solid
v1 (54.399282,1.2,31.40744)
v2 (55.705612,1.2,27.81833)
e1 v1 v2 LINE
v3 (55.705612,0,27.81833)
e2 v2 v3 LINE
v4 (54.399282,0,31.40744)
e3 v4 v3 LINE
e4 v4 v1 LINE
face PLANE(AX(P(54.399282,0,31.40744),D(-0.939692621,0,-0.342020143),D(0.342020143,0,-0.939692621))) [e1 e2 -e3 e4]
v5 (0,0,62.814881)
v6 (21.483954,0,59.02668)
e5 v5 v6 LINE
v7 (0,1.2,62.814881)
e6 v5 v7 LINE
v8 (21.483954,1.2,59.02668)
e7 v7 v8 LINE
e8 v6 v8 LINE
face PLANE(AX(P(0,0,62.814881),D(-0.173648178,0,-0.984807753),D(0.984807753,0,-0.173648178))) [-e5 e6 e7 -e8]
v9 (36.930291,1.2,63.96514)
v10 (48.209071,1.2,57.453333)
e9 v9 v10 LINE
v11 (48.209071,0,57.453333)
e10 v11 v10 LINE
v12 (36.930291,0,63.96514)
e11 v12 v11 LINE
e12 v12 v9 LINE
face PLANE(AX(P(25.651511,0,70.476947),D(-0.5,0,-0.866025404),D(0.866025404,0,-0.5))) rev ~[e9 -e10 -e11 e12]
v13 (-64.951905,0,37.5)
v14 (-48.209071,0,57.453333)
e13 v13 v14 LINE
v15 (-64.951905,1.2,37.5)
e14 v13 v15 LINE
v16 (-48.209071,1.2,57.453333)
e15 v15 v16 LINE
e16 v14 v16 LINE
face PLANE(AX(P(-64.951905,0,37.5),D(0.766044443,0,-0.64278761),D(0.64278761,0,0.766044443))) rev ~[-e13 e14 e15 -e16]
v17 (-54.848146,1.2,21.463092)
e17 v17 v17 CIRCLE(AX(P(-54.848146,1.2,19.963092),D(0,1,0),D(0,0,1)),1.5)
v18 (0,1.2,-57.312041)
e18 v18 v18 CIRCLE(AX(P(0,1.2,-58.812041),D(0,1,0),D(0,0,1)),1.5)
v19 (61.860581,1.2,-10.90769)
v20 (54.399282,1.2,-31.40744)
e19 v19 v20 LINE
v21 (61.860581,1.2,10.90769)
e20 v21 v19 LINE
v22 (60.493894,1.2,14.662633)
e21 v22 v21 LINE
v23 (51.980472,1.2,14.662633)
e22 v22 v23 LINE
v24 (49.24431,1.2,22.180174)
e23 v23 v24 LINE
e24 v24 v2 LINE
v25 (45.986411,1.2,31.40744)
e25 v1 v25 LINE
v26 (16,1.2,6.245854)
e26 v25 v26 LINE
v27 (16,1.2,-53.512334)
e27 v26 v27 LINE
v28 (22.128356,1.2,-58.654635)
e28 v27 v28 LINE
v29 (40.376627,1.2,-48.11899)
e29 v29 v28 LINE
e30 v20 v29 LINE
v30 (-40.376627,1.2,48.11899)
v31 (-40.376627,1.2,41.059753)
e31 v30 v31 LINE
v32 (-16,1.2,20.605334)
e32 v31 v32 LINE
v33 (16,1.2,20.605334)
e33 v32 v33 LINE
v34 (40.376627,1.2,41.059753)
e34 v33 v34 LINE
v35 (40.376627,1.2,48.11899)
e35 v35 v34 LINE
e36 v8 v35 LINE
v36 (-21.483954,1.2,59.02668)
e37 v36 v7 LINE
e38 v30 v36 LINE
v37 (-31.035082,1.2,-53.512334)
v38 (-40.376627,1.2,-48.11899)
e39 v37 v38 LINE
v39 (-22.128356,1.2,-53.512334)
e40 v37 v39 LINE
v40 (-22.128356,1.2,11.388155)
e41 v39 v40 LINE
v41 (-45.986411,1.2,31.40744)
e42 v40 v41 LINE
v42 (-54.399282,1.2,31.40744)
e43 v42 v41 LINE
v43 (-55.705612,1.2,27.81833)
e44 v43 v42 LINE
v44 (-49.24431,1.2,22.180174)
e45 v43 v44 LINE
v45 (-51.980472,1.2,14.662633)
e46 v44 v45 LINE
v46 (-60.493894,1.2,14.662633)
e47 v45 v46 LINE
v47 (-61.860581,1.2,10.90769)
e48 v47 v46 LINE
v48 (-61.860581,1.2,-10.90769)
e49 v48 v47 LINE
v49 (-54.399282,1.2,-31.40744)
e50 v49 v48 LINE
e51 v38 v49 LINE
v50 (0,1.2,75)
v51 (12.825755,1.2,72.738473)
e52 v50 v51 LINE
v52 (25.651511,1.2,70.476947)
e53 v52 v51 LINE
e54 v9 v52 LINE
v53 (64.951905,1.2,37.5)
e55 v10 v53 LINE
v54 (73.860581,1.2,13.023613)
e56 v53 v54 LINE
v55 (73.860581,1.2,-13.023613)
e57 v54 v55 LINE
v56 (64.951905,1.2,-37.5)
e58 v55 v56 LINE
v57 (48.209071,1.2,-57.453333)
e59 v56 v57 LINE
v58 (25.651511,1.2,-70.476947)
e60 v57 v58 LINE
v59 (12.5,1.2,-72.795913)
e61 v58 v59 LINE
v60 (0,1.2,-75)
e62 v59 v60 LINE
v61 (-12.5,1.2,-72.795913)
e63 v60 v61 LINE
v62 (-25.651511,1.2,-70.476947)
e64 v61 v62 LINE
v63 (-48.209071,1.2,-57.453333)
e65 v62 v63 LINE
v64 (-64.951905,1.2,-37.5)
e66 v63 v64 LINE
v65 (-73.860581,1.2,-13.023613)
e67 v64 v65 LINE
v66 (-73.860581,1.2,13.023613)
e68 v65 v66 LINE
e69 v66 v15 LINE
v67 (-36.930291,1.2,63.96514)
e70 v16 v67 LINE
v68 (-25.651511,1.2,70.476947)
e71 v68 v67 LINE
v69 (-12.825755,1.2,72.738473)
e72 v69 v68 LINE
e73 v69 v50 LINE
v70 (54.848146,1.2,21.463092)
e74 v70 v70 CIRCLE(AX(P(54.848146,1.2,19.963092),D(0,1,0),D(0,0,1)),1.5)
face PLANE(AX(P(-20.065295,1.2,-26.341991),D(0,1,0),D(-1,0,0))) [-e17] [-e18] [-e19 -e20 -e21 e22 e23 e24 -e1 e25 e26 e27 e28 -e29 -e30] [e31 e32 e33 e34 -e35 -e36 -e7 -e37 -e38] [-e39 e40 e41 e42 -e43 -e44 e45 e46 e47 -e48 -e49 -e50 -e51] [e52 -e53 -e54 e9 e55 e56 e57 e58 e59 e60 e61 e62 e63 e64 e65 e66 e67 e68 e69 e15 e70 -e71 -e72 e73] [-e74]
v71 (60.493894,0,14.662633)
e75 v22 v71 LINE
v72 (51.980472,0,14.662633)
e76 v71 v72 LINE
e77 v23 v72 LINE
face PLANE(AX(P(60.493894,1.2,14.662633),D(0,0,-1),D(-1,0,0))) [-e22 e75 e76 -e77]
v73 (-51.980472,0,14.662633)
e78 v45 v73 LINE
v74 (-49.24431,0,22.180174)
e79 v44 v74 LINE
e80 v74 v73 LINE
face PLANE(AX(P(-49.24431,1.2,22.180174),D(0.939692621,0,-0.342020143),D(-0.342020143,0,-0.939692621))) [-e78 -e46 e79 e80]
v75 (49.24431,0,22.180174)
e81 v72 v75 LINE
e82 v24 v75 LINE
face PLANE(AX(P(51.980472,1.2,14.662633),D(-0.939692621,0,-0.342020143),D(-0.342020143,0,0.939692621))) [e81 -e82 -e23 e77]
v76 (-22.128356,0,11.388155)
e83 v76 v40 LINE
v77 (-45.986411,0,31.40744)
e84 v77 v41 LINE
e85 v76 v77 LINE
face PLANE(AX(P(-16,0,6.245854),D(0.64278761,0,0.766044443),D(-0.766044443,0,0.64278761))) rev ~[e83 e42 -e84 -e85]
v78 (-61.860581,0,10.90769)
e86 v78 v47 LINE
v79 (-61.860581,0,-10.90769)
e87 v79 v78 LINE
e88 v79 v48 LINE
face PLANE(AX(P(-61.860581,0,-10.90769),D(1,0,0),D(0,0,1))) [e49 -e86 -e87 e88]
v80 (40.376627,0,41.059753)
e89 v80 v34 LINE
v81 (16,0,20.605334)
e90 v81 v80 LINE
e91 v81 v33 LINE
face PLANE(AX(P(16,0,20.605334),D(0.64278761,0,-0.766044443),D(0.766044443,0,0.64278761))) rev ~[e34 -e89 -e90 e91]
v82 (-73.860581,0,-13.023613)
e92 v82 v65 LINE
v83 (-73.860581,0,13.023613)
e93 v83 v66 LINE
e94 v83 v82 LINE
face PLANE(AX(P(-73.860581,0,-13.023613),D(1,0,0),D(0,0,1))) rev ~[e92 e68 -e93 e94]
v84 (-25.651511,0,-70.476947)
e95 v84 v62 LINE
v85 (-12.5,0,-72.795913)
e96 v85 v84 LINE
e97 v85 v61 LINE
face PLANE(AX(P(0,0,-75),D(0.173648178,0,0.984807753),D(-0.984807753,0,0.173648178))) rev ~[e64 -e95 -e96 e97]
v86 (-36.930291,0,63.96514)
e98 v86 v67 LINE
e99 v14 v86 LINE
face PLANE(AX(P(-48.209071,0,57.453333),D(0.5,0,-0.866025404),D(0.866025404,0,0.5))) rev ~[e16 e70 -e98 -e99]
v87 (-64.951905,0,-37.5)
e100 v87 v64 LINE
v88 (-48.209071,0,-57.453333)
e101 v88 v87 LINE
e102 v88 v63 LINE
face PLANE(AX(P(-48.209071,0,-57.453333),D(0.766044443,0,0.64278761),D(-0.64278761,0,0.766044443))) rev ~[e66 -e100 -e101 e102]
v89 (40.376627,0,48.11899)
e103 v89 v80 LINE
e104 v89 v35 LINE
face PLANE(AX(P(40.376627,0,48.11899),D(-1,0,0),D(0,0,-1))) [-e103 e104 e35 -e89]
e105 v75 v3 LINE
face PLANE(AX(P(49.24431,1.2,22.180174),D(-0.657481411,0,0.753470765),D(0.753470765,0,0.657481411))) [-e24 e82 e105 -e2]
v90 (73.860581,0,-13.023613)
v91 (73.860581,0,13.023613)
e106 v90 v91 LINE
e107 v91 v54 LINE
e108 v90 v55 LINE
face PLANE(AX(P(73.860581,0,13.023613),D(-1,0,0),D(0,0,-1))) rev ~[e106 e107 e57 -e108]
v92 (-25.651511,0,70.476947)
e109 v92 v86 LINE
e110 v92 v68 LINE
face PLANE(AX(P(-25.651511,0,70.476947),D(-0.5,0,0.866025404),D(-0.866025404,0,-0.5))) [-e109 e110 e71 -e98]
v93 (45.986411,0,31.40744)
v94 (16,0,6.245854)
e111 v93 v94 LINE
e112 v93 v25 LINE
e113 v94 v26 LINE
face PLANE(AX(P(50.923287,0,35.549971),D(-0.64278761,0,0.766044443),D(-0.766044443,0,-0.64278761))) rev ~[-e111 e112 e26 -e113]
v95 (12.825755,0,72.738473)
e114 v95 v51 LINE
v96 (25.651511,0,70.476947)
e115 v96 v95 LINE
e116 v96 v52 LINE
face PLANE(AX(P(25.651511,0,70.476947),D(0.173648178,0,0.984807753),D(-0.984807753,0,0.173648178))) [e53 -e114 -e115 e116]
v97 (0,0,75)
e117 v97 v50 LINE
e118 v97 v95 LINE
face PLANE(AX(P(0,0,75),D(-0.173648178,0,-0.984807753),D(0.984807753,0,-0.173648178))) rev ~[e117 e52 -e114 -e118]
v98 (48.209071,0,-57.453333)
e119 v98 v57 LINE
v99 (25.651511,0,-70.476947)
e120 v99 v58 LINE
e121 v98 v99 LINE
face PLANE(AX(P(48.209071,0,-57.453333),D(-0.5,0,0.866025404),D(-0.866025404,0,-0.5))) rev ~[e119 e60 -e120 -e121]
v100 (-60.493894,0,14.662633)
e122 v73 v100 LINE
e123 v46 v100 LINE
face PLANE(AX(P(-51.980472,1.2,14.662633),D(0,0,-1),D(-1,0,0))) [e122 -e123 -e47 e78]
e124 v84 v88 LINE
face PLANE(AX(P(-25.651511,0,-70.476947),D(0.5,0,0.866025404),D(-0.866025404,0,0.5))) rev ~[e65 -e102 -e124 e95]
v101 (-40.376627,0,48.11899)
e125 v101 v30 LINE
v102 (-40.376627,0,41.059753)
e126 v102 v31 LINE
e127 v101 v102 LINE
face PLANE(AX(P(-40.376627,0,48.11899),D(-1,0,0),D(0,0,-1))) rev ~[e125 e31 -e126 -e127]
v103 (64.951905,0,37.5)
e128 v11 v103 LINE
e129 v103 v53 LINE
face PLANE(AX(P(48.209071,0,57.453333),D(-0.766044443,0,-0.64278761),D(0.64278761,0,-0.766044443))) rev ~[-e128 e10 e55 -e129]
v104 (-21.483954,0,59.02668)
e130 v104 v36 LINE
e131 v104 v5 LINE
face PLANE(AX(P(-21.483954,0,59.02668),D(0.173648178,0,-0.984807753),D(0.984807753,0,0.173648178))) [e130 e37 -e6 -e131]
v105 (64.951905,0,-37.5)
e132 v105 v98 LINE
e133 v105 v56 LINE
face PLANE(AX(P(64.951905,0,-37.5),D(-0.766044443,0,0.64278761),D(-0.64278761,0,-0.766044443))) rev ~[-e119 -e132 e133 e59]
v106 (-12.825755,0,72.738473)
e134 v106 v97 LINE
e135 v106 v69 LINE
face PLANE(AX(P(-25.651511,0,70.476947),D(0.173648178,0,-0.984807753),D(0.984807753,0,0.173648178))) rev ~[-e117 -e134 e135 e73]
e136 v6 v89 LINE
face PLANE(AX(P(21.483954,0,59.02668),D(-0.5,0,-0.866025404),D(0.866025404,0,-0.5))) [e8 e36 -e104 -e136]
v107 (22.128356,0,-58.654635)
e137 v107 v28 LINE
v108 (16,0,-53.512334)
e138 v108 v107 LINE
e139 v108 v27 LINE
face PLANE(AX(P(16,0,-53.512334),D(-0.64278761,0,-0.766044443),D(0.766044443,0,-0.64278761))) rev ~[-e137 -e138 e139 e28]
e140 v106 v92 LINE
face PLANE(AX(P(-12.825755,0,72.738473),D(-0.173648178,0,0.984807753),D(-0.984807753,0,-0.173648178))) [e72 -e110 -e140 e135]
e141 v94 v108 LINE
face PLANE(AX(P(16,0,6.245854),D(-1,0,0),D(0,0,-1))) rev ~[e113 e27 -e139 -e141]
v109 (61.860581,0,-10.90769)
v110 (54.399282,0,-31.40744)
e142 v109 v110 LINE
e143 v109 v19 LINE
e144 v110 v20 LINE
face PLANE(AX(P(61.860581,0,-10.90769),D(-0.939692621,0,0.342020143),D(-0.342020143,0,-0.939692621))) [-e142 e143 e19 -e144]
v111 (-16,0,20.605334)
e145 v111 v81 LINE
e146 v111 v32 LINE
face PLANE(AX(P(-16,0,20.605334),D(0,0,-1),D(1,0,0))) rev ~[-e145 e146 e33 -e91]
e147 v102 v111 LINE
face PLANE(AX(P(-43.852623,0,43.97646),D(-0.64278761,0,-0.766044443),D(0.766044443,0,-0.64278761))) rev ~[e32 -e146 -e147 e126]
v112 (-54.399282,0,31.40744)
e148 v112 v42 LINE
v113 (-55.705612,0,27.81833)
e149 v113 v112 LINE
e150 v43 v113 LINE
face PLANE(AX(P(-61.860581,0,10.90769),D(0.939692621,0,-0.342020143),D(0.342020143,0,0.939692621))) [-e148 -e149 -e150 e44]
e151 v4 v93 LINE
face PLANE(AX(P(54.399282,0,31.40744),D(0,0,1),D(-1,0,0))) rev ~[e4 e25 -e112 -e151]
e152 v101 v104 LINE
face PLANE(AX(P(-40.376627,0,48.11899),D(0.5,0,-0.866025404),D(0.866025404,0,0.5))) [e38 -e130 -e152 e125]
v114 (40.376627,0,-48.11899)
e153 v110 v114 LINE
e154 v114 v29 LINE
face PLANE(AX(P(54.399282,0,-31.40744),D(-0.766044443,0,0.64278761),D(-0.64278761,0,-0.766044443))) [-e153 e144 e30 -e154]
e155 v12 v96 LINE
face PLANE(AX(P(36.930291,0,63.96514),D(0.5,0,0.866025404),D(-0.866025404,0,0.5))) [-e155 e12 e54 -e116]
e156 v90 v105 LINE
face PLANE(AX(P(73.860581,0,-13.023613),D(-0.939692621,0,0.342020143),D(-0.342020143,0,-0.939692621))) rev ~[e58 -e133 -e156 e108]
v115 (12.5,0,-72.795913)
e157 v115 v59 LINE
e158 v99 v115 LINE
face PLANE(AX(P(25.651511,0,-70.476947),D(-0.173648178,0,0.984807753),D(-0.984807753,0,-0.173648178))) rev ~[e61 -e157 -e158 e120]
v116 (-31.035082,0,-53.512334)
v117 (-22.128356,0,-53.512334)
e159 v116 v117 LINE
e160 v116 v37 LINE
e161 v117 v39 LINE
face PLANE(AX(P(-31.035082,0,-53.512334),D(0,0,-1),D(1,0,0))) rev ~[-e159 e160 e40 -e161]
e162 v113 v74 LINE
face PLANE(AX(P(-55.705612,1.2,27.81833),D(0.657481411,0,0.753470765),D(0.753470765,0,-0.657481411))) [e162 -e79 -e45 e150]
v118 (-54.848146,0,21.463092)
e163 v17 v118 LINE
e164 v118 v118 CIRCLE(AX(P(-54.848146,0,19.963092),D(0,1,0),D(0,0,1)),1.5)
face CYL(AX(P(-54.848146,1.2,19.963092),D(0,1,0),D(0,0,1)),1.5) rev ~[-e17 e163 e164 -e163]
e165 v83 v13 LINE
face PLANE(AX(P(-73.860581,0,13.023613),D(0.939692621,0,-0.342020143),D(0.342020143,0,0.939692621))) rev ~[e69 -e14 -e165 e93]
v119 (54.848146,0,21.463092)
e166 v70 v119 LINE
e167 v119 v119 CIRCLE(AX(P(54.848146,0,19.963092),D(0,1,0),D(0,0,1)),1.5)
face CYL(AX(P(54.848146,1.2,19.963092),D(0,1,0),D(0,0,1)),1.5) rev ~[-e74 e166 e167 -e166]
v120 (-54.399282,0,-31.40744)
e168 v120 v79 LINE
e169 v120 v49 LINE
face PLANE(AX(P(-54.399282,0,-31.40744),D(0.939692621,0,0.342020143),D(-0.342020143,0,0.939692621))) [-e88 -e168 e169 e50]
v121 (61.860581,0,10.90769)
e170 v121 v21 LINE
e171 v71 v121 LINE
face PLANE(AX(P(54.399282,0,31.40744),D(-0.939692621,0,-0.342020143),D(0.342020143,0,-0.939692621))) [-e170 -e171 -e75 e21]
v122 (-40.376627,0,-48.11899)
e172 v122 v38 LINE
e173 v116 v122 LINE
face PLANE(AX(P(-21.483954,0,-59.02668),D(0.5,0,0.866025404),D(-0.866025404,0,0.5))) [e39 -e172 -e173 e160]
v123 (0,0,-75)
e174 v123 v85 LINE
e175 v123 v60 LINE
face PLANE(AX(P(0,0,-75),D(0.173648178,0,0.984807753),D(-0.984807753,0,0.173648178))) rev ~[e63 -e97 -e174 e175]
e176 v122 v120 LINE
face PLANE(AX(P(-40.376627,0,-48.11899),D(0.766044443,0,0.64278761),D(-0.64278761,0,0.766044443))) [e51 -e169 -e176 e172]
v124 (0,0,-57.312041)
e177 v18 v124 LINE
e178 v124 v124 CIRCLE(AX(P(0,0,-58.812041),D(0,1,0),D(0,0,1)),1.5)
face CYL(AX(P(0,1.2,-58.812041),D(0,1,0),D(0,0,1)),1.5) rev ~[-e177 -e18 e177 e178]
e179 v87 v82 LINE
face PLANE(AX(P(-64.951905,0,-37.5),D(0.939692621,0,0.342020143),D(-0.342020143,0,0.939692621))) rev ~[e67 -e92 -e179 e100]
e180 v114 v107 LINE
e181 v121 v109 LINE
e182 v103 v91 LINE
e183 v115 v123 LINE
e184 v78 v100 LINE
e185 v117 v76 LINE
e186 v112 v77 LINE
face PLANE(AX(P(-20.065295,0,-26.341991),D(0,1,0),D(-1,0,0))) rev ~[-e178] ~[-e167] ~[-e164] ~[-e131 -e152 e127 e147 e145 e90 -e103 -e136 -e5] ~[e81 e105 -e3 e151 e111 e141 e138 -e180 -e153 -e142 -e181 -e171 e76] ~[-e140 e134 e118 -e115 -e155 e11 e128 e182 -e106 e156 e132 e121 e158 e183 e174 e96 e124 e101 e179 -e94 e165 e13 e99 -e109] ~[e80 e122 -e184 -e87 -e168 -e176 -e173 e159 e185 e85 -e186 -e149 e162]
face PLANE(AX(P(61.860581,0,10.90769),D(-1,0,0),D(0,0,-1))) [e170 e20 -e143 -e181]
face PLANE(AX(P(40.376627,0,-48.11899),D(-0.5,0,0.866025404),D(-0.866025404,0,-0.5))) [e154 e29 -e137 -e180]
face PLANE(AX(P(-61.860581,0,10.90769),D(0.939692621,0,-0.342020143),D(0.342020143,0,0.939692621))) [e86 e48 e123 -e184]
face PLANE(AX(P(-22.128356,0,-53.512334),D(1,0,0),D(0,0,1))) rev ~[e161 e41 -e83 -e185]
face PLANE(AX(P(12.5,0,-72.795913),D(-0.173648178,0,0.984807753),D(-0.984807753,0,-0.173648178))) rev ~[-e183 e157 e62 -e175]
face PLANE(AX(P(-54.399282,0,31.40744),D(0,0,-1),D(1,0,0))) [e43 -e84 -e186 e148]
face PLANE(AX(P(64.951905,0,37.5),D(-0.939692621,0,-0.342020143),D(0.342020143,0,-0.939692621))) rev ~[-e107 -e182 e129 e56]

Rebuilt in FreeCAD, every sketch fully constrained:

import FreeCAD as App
import Part
import Sketcher
Q = App.Units.Quantity


def add_polygon(sketch, points):
    """Adds a closed chain of lines whose ends are joined by coincident constraints."""
    first, n = sketch.GeometryCount, len(points)
    for a, b in zip(points, points[1:] + points[:1]):
        sketch.addGeometry(Part.LineSegment(App.Vector(*a, 0), App.Vector(*b, 0)), False)
    for i in range(n):
        sketch.addConstraint(Sketcher.Constraint("Coincident", first + i, 2, first + (i + 1) % n, 1))

doc = App.newDocument("Part")
body = doc.addObject("PartDesign::Body", "Body")

# Sketch on XZ plane
sketch1 = body.newObject("Sketcher::SketchObject", "Sketch")
sketch1.AttachmentSupport = (doc.getObject("XZ_Plane"), [""])
sketch1.MapMode = "FlatFace"
add_polygon(sketch1, [(0, -75), (-26, -70), (-48, -57), (-65, -38), (-74, -13), (-74, 13), (-65, 38), (-48, 57), (-26, 70), (0, 75), (26, 70), (48, 57), (65, 38), (74, 13), (74, -13), (65, -38), (48, -57), (26, -70)])  # lines 0-17
add_polygon(sketch1, [(-21, -59), (0, -63), (21, -59), (40, -48), (54, -31), (62, -11), (62, 11), (54, 31), (40, 48), (21, 59), (0, 63), (-21, 59), (-40, 48), (-54, 31), (-62, 11), (-62, -11), (-54, -31), (-40, -48)])  # lines 18-35
sketch1.addConstraint([
    Sketcher.Constraint("Vertical", 4),
    Sketcher.Constraint("Vertical", 13),
    Sketcher.Constraint("Vertical", 23),
    Sketcher.Constraint("Vertical", 32),
    Sketcher.Constraint("Symmetric", 0, 2, 9, 2, -1, 1),
    Sketcher.Constraint("Symmetric", 1, 2, 10, 2, -1, 1),
    Sketcher.Constraint("Symmetric", 2, 2, 11, 2, -1, 1),
    Sketcher.Constraint("Symmetric", 3, 2, 12, 2, -1, 1),
    Sketcher.Constraint("Symmetric", 5, 2, 14, 2, -1, 1),
    Sketcher.Constraint("Symmetric", 6, 2, 15, 2, -1, 1),
    Sketcher.Constraint("Symmetric", 7, 2, 16, 2, -1, 1),
    Sketcher.Constraint("Symmetric", 8, 2, 17, 2, -1, 1),
    Sketcher.Constraint("Symmetric", 18, 2, 27, 2, -1, 1),
    Sketcher.Constraint("Symmetric", 19, 2, 28, 2, -1, 1),
    Sketcher.Constraint("Symmetric", 20, 2, 29, 2, -1, 1),
    Sketcher.Constraint("Symmetric", 21, 2, 30, 2, -1, 1),
    Sketcher.Constraint("Symmetric", 22, 2, 31, 2, -1, 1),
    Sketcher.Constraint("Symmetric", 24, 2, 33, 2, -1, 1),
    Sketcher.Constraint("Symmetric", 25, 2, 34, 2, -1, 1),
    Sketcher.Constraint("Symmetric", 26, 2, 35, 2, -1, 1),
    Sketcher.Constraint("Symmetric", 7, 2, 9, 2, -2),
    Sketcher.Constraint("Symmetric", 6, 2, 10, 2, -2),
    Sketcher.Constraint("Symmetric", 5, 2, 11, 2, -2),
    Sketcher.Constraint("Symmetric", 26, 2, 28, 2, -2),
    Sketcher.Constraint("Symmetric", 25, 2, 29, 2, -2),
    Sketcher.Constraint("Symmetric", 24, 2, 30, 2, -2),
    Sketcher.Constraint("PointOnObject", 8, 2, -2),
    Sketcher.Constraint("PointOnObject", 18, 2, -2),
    Sketcher.Constraint("Parallel", 5, 14),
    Sketcher.Constraint("Parallel", 9, 18),
    Sketcher.Constraint("Parallel", 16, 20),
    Sketcher.Constraint("Parallel", 15, 21),
    Sketcher.Constraint("Parallel", 14, 22),
    Sketcher.Constraint("Parallel", 12, 24),
    Sketcher.Constraint("Parallel", 24, 33),
    Sketcher.Constraint("Horizontal", 4, 2, 12, 2),
    Sketcher.Constraint("Equal", 0, 1),
    Sketcher.Constraint("Equal", 1, 2),
    Sketcher.Constraint("Equal", 2, 3),
    Sketcher.Constraint("Equal", 19, 20),
    Sketcher.Constraint("Equal", 20, 21),
    Sketcher.Constraint("Equal", 21, 22),
    Sketcher.Constraint("Angle", 0, Q("170 deg")),
    Sketcher.Constraint("Angle", 1, Q("150 deg")),
    Sketcher.Constraint("Angle", 2, Q("130 deg")),
    Sketcher.Constraint("Angle", 3, Q("110 deg")),
    Sketcher.Constraint("DistanceY", -1, 1, 8, 2, 75.0),
    Sketcher.Constraint("DistanceY", 2, 2, 5, 2, 75.0),
    Sketcher.Constraint("DistanceX", 22, 2, 13, 2, 12.0),
    Sketcher.Constraint("DistanceY", 23, 1, 23, 2, 21.815379),
])
pad1 = body.newObject("PartDesign::Pad", "Pad")
pad1.Profile = sketch1
pad1.Length = 1.2
pad1.Reversed = True
body2 = doc.addObject("PartDesign::Body", "Body001")

# Sketch on XZ plane
sketch2 = body2.newObject("Sketcher::SketchObject", "Sketch001")
sketch2.AttachmentSupport = (doc.getObject("XZ_Plane001"), [""])
sketch2.MapMode = "FlatFace"
add_polygon(sketch2, [(0, -101.4), (34.7, -95.3), (36.9, -94), (36.9, -84.7), (31.9, -87.7), (0, -93.3), (-31.9, -87.7), (-36.9, -84.7), (-36.9, -94), (-34.7, -95.3)])  # lines 0-9
sketch2.addConstraint([
    Sketcher.Constraint("Vertical", 2),
    Sketcher.Constraint("Vertical", 7),
    Sketcher.Constraint("Symmetric", 3, 2, 5, 2, -2),
    Sketcher.Constraint("Symmetric", 2, 2, 6, 2, -2),
    Sketcher.Constraint("Symmetric", 0, 2, 8, 2, -2),
    Sketcher.Constraint("PointOnObject", 4, 2, -2),
    Sketcher.Constraint("PointOnObject", 9, 2, -2),
    Sketcher.Constraint("Parallel", 1, 3),
    Sketcher.Constraint("Parallel", 0, 4),
    Sketcher.Constraint("Parallel", 6, 8),
    Sketcher.Constraint("Angle", 0, Q("10 deg")),
    Sketcher.Constraint("Angle", 1, Q("30 deg")),
    Sketcher.Constraint("Distance", 0, 35.21623),
    Sketcher.Constraint("DistanceY", 2, 1, 2, 2, 9.237604),
    Sketcher.Constraint("DistanceX", -1, 1, 1, 2, 36.930291),
    Sketcher.Constraint("DistanceY", 2, 2, -1, 1, 84.74975),
    Sketcher.Constraint("DistanceY", 4, 2, -1, 1, 93.277679),
])
pad2 = body2.newObject("PartDesign::Pad", "Pad001")
pad2.Profile = sketch2
pad2.Length = 1.2
pad2.Reversed = True
body3 = doc.addObject("PartDesign::Body", "Body002")

# Sketch on XZ plane
sketch3 = body3.newObject("Sketcher::SketchObject", "Sketch002")
sketch3.AttachmentSupport = (doc.getObject("XZ_Plane002"), [""])
sketch3.MapMode = "FlatFace"
add_polygon(sketch3, [(93, -38), (100, -18), (100, 18), (93, 38), (84, 38), (92, 16), (92, -16), (84, -38)])  # lines 0-7
sketch3.addConstraint([
    Sketcher.Constraint("Vertical", 1),
    Sketcher.Constraint("Horizontal", 3),
    Sketcher.Constraint("Vertical", 5),
    Sketcher.Constraint("Horizontal", 7),
    Sketcher.Constraint("Symmetric", 3, 2, 6, 2, -1),
    Sketcher.Constraint("Parallel", 2, 4),
    Sketcher.Constraint("Parallel", 0, 6),
    Sketcher.Constraint("Vertical", 2, 2, 7, 2),
    Sketcher.Constraint("Equal", 0, 2),
    Sketcher.Constraint("Angle", 0, Q("70 deg")),
    Sketcher.Constraint("DistanceX", 4, 2, 1, 2, 8.0),
    Sketcher.Constraint("DistanceY", 6, 2, 3, 2, 75.0),
    Sketcher.Constraint("DistanceY", 1, 1, 1, 2, 35.21623),
    Sketcher.Constraint("DistanceY", -1, 1, 4, 2, 16.197499),
    Sketcher.Constraint("DistanceX", -1, 1, 0, 2, 99.860581),
])
pad3 = body3.newObject("PartDesign::Pad", "Pad002")
pad3.Profile = sketch3
pad3.Length = 1.2
pad3.Reversed = True
body4 = doc.addObject("PartDesign::Body", "Body003")

# Sketch on XZ plane
sketch4 = body4.newObject("Sketcher::SketchObject", "Sketch003")
sketch4.AttachmentSupport = (doc.getObject("XZ_Plane003"), [""])
sketch4.MapMode = "FlatFace"
add_polygon(sketch4, [(-93, 38), (-100, 18), (-100, -18), (-93, -38), (-84, -38), (-92, -16), (-92, 16), (-84, 38)])  # lines 0-7
sketch4.addConstraint([
    Sketcher.Constraint("Vertical", 1),
    Sketcher.Constraint("Horizontal", 3),
    Sketcher.Constraint("Vertical", 5),
    Sketcher.Constraint("Horizontal", 7),
    Sketcher.Constraint("Symmetric", 3, 2, 6, 2, -1),
    Sketcher.Constraint("Parallel", 2, 4),
    Sketcher.Constraint("Parallel", 0, 6),
    Sketcher.Constraint("Vertical", 2, 2, 7, 2),
    Sketcher.Constraint("Equal", 0, 2),
    Sketcher.Constraint("Angle", 0, Q("-110 deg")),
    Sketcher.Constraint("DistanceX", 1, 2, 4, 2, 8.0),
    Sketcher.Constraint("DistanceY", 3, 2, 6, 2, 75.0),
    Sketcher.Constraint("DistanceY", 1, 2, 1, 1, 35.21623),
    Sketcher.Constraint("DistanceY", 4, 2, -1, 1, 16.197499),
    Sketcher.Constraint("DistanceX", 0, 2, -1, 1, 99.860581),
])
pad4 = body4.newObject("PartDesign::Pad", "Pad003")
pad4.Profile = sketch4
pad4.Length = 1.2
pad4.Reversed = True
body.AllowCompound = True
doc.recompute()

boolean = body.newObject("PartDesign::Boolean", "Boolean")
boolean.Type = "Fuse"
boolean.addObjects([body2])
doc.recompute()

boolean2 = body.newObject("PartDesign::Boolean", "Boolean001")
boolean2.Type = "Fuse"
boolean2.addObjects([body3])
doc.recompute()

boolean3 = body.newObject("PartDesign::Boolean", "Boolean002")
boolean3.Type = "Fuse"
boolean3.addObjects([body4])

# Sketch on XZ plane
sketch5 = body.newObject("Sketcher::SketchObject", "Sketch004")
sketch5.AttachmentSupport = (doc.getObject("XZ_Plane"), [""])
sketch5.MapMode = "FlatFace"
add_polygon(sketch5, [(-92, 12), (-92, -12), (-74, -12), (-74, 12)])  # lines 0-3
add_polygon(sketch5, [(74, 12), (74, -12), (92, -12), (92, 12)])  # lines 4-7
add_polygon(sketch5, [(-12, -73), (-12, -91), (0, -93), (12, -91), (12, -73), (0, -75)])  # lines 8-13
sketch5.addConstraint([
    Sketcher.Constraint("Vertical", 0),
    Sketcher.Constraint("Horizontal", 1),
    Sketcher.Constraint("Vertical", 2),
    Sketcher.Constraint("Horizontal", 3),
    Sketcher.Constraint("Vertical", 4),
    Sketcher.Constraint("Horizontal", 5),
    Sketcher.Constraint("Vertical", 6),
    Sketcher.Constraint("Horizontal", 7),
    Sketcher.Constraint("Vertical", 8),
    Sketcher.Constraint("Vertical", 11),
    Sketcher.Constraint("Symmetric", 2, 2, 4, 2, -1, 1),
    Sketcher.Constraint("Symmetric", 0, 2, 6, 2, -1, 1),
    Sketcher.Constraint("Symmetric", 8, 2, 10, 2, -2),
    Sketcher.Constraint("PointOnObject", 9, 2, -2),
    Sketcher.Constraint("PointOnObject", 12, 2, -2),
    Sketcher.Constraint("Parallel", 10, 12),
    Sketcher.Constraint("Parallel", 9, 13),
    Sketcher.Constraint("Horizontal", 1, 2, 4, 2),
    Sketcher.Constraint("DistanceX", 1, 1, 1, 2, 18.0),
    Sketcher.Constraint("DistanceY", 0, 2, 0, 1, 25.0),
    Sketcher.Constraint("Angle", 9, Q("-10 deg")),
    Sketcher.Constraint("DistanceY", 12, 2, -1, 1, 75.0),
    Sketcher.Constraint("DistanceX", 8, 2, 10, 2, 25.0),
    Sketcher.Constraint("DistanceY", 8, 2, 8, 1, 18.277679),
    Sketcher.Constraint("DistanceX", 0, 2, -1, 1, 91.860581),
])
pad5 = body.newObject("PartDesign::Pad", "Pad004")
pad5.Profile = sketch5
pad5.Length = 1.2
pad5.Reversed = True

# Sketch on XZ plane
sketch6 = body.newObject("Sketcher::SketchObject", "Sketch005")
sketch6.AttachmentSupport = (doc.getObject("XZ_Plane"), [""])
sketch6.MapMode = "FlatFace"
add_polygon(sketch6, [(-82.9, 12.5), (-91.9, 16.2), (-91.9, 12.5)])  # lines 0-2
add_polygon(sketch6, [(-91.9, -16.2), (-82.9, -12.5), (-91.9, -12.5)])  # lines 3-5
add_polygon(sketch6, [(91.9, 16.2), (82.9, 12.5), (91.9, 12.5)])  # lines 6-8
add_polygon(sketch6, [(82.9, -12.5), (91.9, -16.2), (91.9, -12.5)])  # lines 9-11
add_polygon(sketch6, [(22.2, -89.4), (12.5, -81.9), (12.5, -91.1)])  # lines 12-14
add_polygon(sketch6, [(-12.5, -91.1), (-12.5, -81.9), (-22.2, -89.4)])  # lines 15-17
sketch6.addConstraint([
    Sketcher.Constraint("Vertical", 1),
    Sketcher.Constraint("Horizontal", 2),
    Sketcher.Constraint("Horizontal", 4),
    Sketcher.Constraint("Vertical", 5),
    Sketcher.Constraint("Horizontal", 7),
    Sketcher.Constraint("Vertical", 8),
    Sketcher.Constraint("Vertical", 10),
    Sketcher.Constraint("Horizontal", 11),
    Sketcher.Constraint("Vertical", 13),
    Sketcher.Constraint("Vertical", 15),
    Sketcher.Constraint("Symmetric", 3, 2, 6, 2, -1, 1),
    Sketcher.Constraint("Symmetric", 5, 2, 8, 2, -1, 1),
    Sketcher.Constraint("Symmetric", 0, 2, 9, 2, -1, 1),
    Sketcher.Constraint("Symmetric", 2, 2, 11, 2, -1, 1),
    Sketcher.Constraint("Symmetric", 2, 2, 6, 2, -2),
    Sketcher.Constraint("Symmetric", 0, 2, 8, 2, -2),
    Sketcher.Constraint("Symmetric", 12, 2, 15, 2, -2),
    Sketcher.Constraint("Symmetric", 14, 2, 16, 2, -2),
    Sketcher.Constraint("Horizontal", 13, 2, 17, 2),
    Sketcher.Constraint("DistanceX", 2, 1, 2, 2, 9.0),
    Sketcher.Constraint("Angle", 14, Q("10 deg")),
    Sketcher.Constraint("DistanceY", 3, 2, 2, 2, 25.0),
    Sketcher.Constraint("DistanceX", 15, 2, 12, 2, 25.0),
    Sketcher.Constraint("DistanceY", 1, 2, 1, 1, 3.697499),
    Sketcher.Constraint("DistanceY", 13, 2, 13, 1, 9.13884),
    Sketcher.Constraint("DistanceX", 0, 2, -1, 1, 91.860581),
    Sketcher.Constraint("DistanceY", 13, 2, -1, 1, 91.073592),
    Sketcher.Constraint("DistanceY", 14, 2, -1, 1, 89.362969),
])
pad6 = body.newObject("PartDesign::Pad", "Pad005")
pad6.Profile = sketch6
pad6.Length = 1.2
pad6.Reversed = True

# Sketch on XZ plane
sketch7 = body.newObject("Sketcher::SketchObject", "Sketch006")
sketch7.AttachmentSupport = (doc.getObject("XZ_Plane"), [""])
sketch7.MapMode = "FlatFace"
add_polygon(sketch7, [(-36.9, 92), (-36.9, 64), (-25.7, 70.5), (-12.8, 72.7), (-32.1, 92)])  # lines 0-4
add_polygon(sketch7, [(36.9, 64), (36.9, 92), (32.1, 92), (12.8, 72.7), (25.7, 70.5)])  # lines 5-9
sketch7.addConstraint([
    Sketcher.Constraint("Vertical", 0),
    Sketcher.Constraint("Horizontal", 4),
    Sketcher.Constraint("Vertical", 5),
    Sketcher.Constraint("Horizontal", 6),
    Sketcher.Constraint("Symmetric", 4, 2, 5, 2, -2),
    Sketcher.Constraint("Symmetric", 2, 2, 7, 2, -2),
    Sketcher.Constraint("Symmetric", 1, 2, 8, 2, -2),
    Sketcher.Constraint("Perpendicular", 3, 7),
    Sketcher.Constraint("Horizontal", 0, 2, 9, 2),
    Sketcher.Constraint("Equal", 4, 6),
    Sketcher.Constraint("Equal", 1, 2),
    Sketcher.Constraint("DistanceY", 0, 2, 0, 1, 28.0),
    Sketcher.Constraint("Angle", 1, Q("30 deg")),
    Sketcher.Constraint("Angle", 2, Q("10 deg")),
    Sketcher.Constraint("DistanceX", 4, 2, 4, 1, 4.877869),
    Sketcher.Constraint("DistanceX", 1, 2, 5, 2, 62.581801),
    Sketcher.Constraint("DistanceY", -1, 1, 0, 2, 63.96514),
])
pad7 = body.newObject("PartDesign::Pad", "Pad006")
pad7.Profile = sketch7
pad7.Length = 1.2
pad7.Reversed = True

# Sketch on XZ plane
sketch8 = body.newObject("Sketcher::SketchObject", "Sketch007")
sketch8.AttachmentSupport = (doc.getObject("XZ_Plane"), [""])
sketch8.MapMode = "FlatFace"
sketch8.AttachmentOffset = App.Placement(App.Vector(0, 0, -1.2), App.Rotation())
add_polygon(sketch8, [(-36.9, -94), (-36.9, -80.1), (-30.5, -83.8), (-17.9, -86.1), (17.9, -86.1), (30.5, -83.8), (36.9, -80.1), (36.9, -94), (34.7, -95.3), (0, -101.4), (-34.7, -95.3)])  # lines 0-10
sketch8.addConstraint([
    Sketcher.Constraint("Vertical", 0),
    Sketcher.Constraint("Horizontal", 3),
    Sketcher.Constraint("Vertical", 6),
    Sketcher.Constraint("Symmetric", 1, 2, 4, 2, -2),
    Sketcher.Constraint("Symmetric", 0, 2, 5, 2, -2),
    Sketcher.Constraint("Symmetric", 7, 2, 9, 2, -2),
    Sketcher.Constraint("PointOnObject", 8, 2, -2),
    Sketcher.Constraint("Parallel", 5, 7),
    Sketcher.Constraint("Parallel", 4, 8),
    Sketcher.Constraint("Parallel", 2, 9),
    Sketcher.Constraint("Parallel", 1, 10),
    Sketcher.Constraint("Angle", 1, Q("-30 deg")),
    Sketcher.Constraint("Angle", 2, Q("-10 deg")),
    Sketcher.Constraint("DistanceX", 3, 1, 3, 2, 35.779358),
    Sketcher.Constraint("DistanceY", 8, 2, 1, 2, 17.565501),
    Sketcher.Constraint("Distance", 8, 35.21623),
    Sketcher.Constraint("DistanceY", 0, 1, 0, 2, 13.856406),
    Sketcher.Constraint("DistanceX", 0, 2, -1, 1, 36.930291),
    Sketcher.Constraint("DistanceY", 1, 2, -1, 1, 83.835591),
])
pad8 = body.newObject("PartDesign::Pad", "Pad007")
pad8.Profile = sketch8
pad8.Length = 1.2

# Sketch on XZ plane
sketch9 = body.newObject("Sketcher::SketchObject", "Sketch008")
sketch9.AttachmentSupport = (doc.getObject("XZ_Plane"), [""])
sketch9.MapMode = "FlatFace"
add_polygon(sketch9, [(-44, 44), (-51, 36), (-16, 6), (-16, -60), (0, -63), (16, -60), (16, 6), (51, 36), (44, 44), (16, 21), (-16, 21)])  # lines 0-10
sketch9.addConstraint([
    Sketcher.Constraint("Vertical", 2),
    Sketcher.Constraint("Vertical", 5),
    Sketcher.Constraint("Horizontal", 9),
    Sketcher.Constraint("Symmetric", 2, 2, 4, 2, -2),
    Sketcher.Constraint("Symmetric", 0, 2, 6, 2, -2),
    Sketcher.Constraint("Symmetric", 7, 2, 10, 2, -2),
    Sketcher.Constraint("PointOnObject", 3, 2, -2),
    Sketcher.Constraint("Perpendicular", 0, 1),
    Sketcher.Constraint("Perpendicular", 6, 7),
    Sketcher.Constraint("Perpendicular", 7, 8),
    Sketcher.Constraint("Parallel", 1, 10),
    Sketcher.Constraint("Vertical", 5, 2, 8, 2),
    Sketcher.Constraint("DistanceX", 9, 2, 9, 1, 32.0),
    Sketcher.Constraint("Angle", 0, Q("-130 deg")),
    Sketcher.Constraint("Angle", 3, Q("-10 deg")),
    Sketcher.Constraint("Distance", 0, 11.0),
    Sketcher.Constraint("DistanceY", 2, 2, 2, 1, 66.239503),
    Sketcher.Constraint("DistanceY", -1, 1, 0, 2, 35.549971),
    Sketcher.Constraint("DistanceY", 2, 2, -1, 1, 59.993649),
])
pad9 = body.newObject("PartDesign::Pad", "Pad008")
pad9.Profile = sketch9
pad9.Length = 1.2
pad9.Reversed = True

# Sketch on XZ plane
sketch10 = body.newObject("Sketcher::SketchObject", "Sketch009")
sketch10.AttachmentSupport = (doc.getObject("XZ_Plane"), [""])
sketch10.MapMode = "FlatFace"
add_polygon(sketch10, [(-40.4, 41.1), (-40.4, 48.1), (-43.9, 44)])  # lines 0-2
add_polygon(sketch10, [(40.4, 48.1), (40.4, 41.1), (43.9, 44)])  # lines 3-5
add_polygon(sketch10, [(46, 31.4), (54.4, 31.4), (50.9, 35.5)])  # lines 6-8
add_polygon(sketch10, [(-54.4, 31.4), (-46, 31.4), (-50.9, 35.5)])  # lines 9-11
add_polygon(sketch10, [(-16, -53.5), (-22.1, -58.7), (-21.5, -59), (-16, -60)])  # lines 12-15
add_polygon(sketch10, [(16, -53.5), (16, -60), (21.5, -59), (22.1, -58.7)])  # lines 16-19
sketch10.addConstraint([
    Sketcher.Constraint("Vertical", 0),
    Sketcher.Constraint("Vertical", 3),
    Sketcher.Constraint("Horizontal", 6),
    Sketcher.Constraint("Horizontal", 9),
    Sketcher.Constraint("Vertical", 15),
    Sketcher.Constraint("Vertical", 16),
    Sketcher.Constraint("Symmetric", 2, 2, 3, 2, -2),
    Sketcher.Constraint("Symmetric", 1, 2, 4, 2, -2),
    Sketcher.Constraint("Symmetric", 8, 2, 9, 2, -2),
    Sketcher.Constraint("Symmetric", 7, 2, 10, 2, -2),
    Sketcher.Constraint("Symmetric", 14, 2, 16, 2, -2),
    Sketcher.Constraint("Symmetric", 13, 2, 17, 2, -2),
    Sketcher.Constraint("Symmetric", 12, 2, 18, 2, -2),
    Sketcher.Constraint("Perpendicular", 1, 2),
    Sketcher.Constraint("Perpendicular", 4, 5),
    Sketcher.Constraint("Parallel", 5, 7),
    Sketcher.Constraint("Perpendicular", 7, 8),
    Sketcher.Constraint("Perpendicular", 10, 11),
    Sketcher.Constraint("Parallel", 8, 12),
    Sketcher.Constraint("Perpendicular", 11, 19),
    Sketcher.Constraint("Equal", 5, 7),
    Sketcher.Constraint("Angle", 1, Q("-130 deg")),
    Sketcher.Constraint("Angle", 13, Q("-30 deg")),
    Sketcher.Constraint("Angle", 14, Q("-10 deg")),
    Sketcher.Constraint("Distance", 12, 8.0),
    Sketcher.Constraint("DistanceX", 14, 2, -1, 1, 16.0),
    Sketcher.Constraint("DistanceX", 6, 1, 6, 2, 8.412871),
    Sketcher.Constraint("DistanceX", 12, 2, 13, 2, 0.644401),
    Sketcher.Constraint("DistanceY", -1, 1, 0, 2, 48.11899),
    Sketcher.Constraint("DistanceY", -1, 1, 6, 2, 31.40744),
    Sketcher.Constraint("DistanceX", -1, 1, 8, 2, 45.986411),
    Sketcher.Constraint("DistanceY", 13, 2, -1, 1, 59.02668),
    Sketcher.Constraint("DistanceX", 1, 2, 3, 2, 84.22925),
])
pad10 = body.newObject("PartDesign::Pad", "Pad009")
pad10.Profile = sketch10
pad10.Length = 1.2
pad10.Reversed = True

# Sketch on XZ plane
sketch11 = body.newObject("Sketcher::SketchObject", "Sketch010")
sketch11.AttachmentSupport = (doc.getObject("XZ_Plane"), [""])
sketch11.MapMode = "FlatFace"
sketch11.AttachmentOffset = App.Placement(App.Vector(0, 0, -1.2), App.Rotation())
add_polygon(sketch11, [(-37, -94), (-46, -89), (-46, -75), (-37, -80)])  # lines 0-3
add_polygon(sketch11, [(46, -89), (37, -94), (37, -80), (46, -75)])  # lines 4-7
sketch11.addConstraint([
    Sketcher.Constraint("Vertical", 1),
    Sketcher.Constraint("Vertical", 3),
    Sketcher.Constraint("Vertical", 5),
    Sketcher.Constraint("Vertical", 7),
    Sketcher.Constraint("Symmetric", 3, 2, 4, 2, -2),
    Sketcher.Constraint("Symmetric", 1, 2, 6, 2, -2),
    Sketcher.Constraint("Parallel", 0, 2),
    Sketcher.Constraint("Parallel", 4, 6),
    Sketcher.Constraint("Horizontal", 2, 2, 5, 2),
    Sketcher.Constraint("Angle", 0, Q("150 deg")),
    Sketcher.Constraint("DistanceX", 1, 2, 2, 2, 9.0),
    Sketcher.Constraint("DistanceY", 0, 2, -1, 1, 88.791201),
    Sketcher.Constraint("DistanceY", 1, 1, 1, 2, 13.856406),
    Sketcher.Constraint("DistanceX", 0, 2, -1, 1, 45.930291),
])
pad11 = body.newObject("PartDesign::Pad", "Pad010")
pad11.Profile = sketch11
pad11.Length = 1.2

# Sketch on XZ plane
sketch12 = body.newObject("Sketcher::SketchObject", "Sketch011")
sketch12.AttachmentSupport = (doc.getObject("XZ_Plane"), [""])
sketch12.MapMode = "FlatFace"
sketch12.AttachmentOffset = App.Placement(App.Vector(0, 0, -1.2), App.Rotation())
sketch12.addGeometry(Part.Circle(App.Vector(0, -58.8, 0), App.Vector(0, 0, 1), 1.5), False)
sketch12.addConstraint([
    Sketcher.Constraint("PointOnObject", 0, 3, -2),
    Sketcher.Constraint("Diameter", 0, 3.0),
    Sketcher.Constraint("DistanceY", 0, 3, -1, 1, 58.812041),
])
pocket1 = body.newObject("PartDesign::Pocket", "Pocket")
pocket1.Profile = sketch12
pocket1.Length = 1.2
pocket1.Reversed = True

# Sketch on XZ plane
sketch13 = body.newObject("Sketcher::SketchObject", "Sketch012")
sketch13.AttachmentSupport = (doc.getObject("XZ_Plane"), [""])
sketch13.MapMode = "FlatFace"
sketch13.AttachmentOffset = App.Placement(App.Vector(0, 0, -1.2), App.Rotation())
add_polygon(sketch13, [(-60, 15), (-56, 28), (-49, 22), (-52, 15)])  # lines 0-3
add_polygon(sketch13, [(49, 22), (56, 28), (60, 15), (52, 15)])  # lines 4-7
sketch13.addConstraint([
    Sketcher.Constraint("Horizontal", 3),
    Sketcher.Constraint("Horizontal", 6),
    Sketcher.Constraint("Symmetric", 0, 2, 4, 2, -2),
    Sketcher.Constraint("Symmetric", 3, 2, 5, 2, -2),
    Sketcher.Constraint("Symmetric", 1, 2, 7, 2, -2),
    Sketcher.Constraint("Parallel", 0, 2),
    Sketcher.Constraint("Parallel", 5, 7),
    Sketcher.Constraint("Angle", 0, Q("70 deg")),
    Sketcher.Constraint("Distance", 0, 14.0),
    Sketcher.Constraint("Distance", 2, 8.0),
    Sketcher.Constraint("DistanceX", 0, 2, 1, 2, 6.461301),
    Sketcher.Constraint("DistanceX", 0, 2, -1, 1, 55.705612),
    Sketcher.Constraint("DistanceY", -1, 1, 0, 2, 27.81833),
])
pad12 = body.newObject("PartDesign::Pad", "Pad011")
pad12.Profile = sketch13
pad12.Length = 1.2

# Sketch on XZ plane
sketch14 = body.newObject("Sketcher::SketchObject", "Sketch013")
sketch14.AttachmentSupport = (doc.getObject("XZ_Plane"), [""])
sketch14.MapMode = "FlatFace"
sketch14.AttachmentOffset = App.Placement(App.Vector(0, 0, -1.2), App.Rotation())
sketch14.addGeometry([
    Part.Circle(App.Vector(-54.8, 20, 0), App.Vector(0, 0, 1), 1.5),
    Part.Circle(App.Vector(54.8, 20, 0), App.Vector(0, 0, 1), 1.5),
], False)
sketch14.addConstraint([
    Sketcher.Constraint("Equal", 0, 1),
    Sketcher.Constraint("Symmetric", 0, 3, 1, 3, -2),
    Sketcher.Constraint("Diameter", 0, 3.0),
    Sketcher.Constraint("DistanceX", 0, 3, 1, 3, 109.696292),
    Sketcher.Constraint("DistanceY", -1, 1, 0, 3, 19.963092),
])
pocket2 = body.newObject("PartDesign::Pocket", "Pocket001")
pocket2.Profile = sketch14
pocket2.Length = 1.2
pocket2.Reversed = True

# Sketch on XZ plane
sketch15 = body.newObject("Sketcher::SketchObject", "Sketch014")
sketch15.AttachmentSupport = (doc.getObject("XZ_Plane"), [""])
sketch15.MapMode = "FlatFace"
add_polygon(sketch15, [(-16, 6), (-22, 11), (-22, -54), (-31, -54), (-22, -59), (-16, -54)])  # lines 0-5
sketch15.addConstraint([
    Sketcher.Constraint("Vertical", 1),
    Sketcher.Constraint("Horizontal", 2),
    Sketcher.Constraint("Vertical", 5),
    Sketcher.Constraint("Horizontal", 2, 2, 4, 2),
    Sketcher.Constraint("Vertical", 1, 2, 3, 2),
    Sketcher.Constraint("Equal", 0, 4),
    Sketcher.Constraint("Angle", 0, Q("140 deg")),
    Sketcher.Constraint("Angle", 3, Q("-30 deg")),
    Sketcher.Constraint("Distance", 0, 8.0),
    Sketcher.Constraint("DistanceX", 4, 2, -1, 1, 16.0),
    Sketcher.Constraint("DistanceY", 1, 2, 1, 1, 64.900489),
    Sketcher.Constraint("DistanceY", -1, 1, 0, 2, 11.388155),
])
pad13 = body.newObject("PartDesign::Pad", "Pad012")
pad13.Profile = sketch15
pad13.Length = 1.2
pad13.Reversed = True

# Sketch on XZ plane
sketch16 = body.newObject("Sketcher::SketchObject", "Sketch015")
sketch16.AttachmentSupport = (doc.getObject("XZ_Plane"), [""])
sketch16.MapMode = "FlatFace"
add_polygon(sketch16, [(-84.1, -37.5), (-73.9, -13), (-73.9, 12.5), (-84.1, 37.5), (-92.6, 37.5), (-99.9, 17.6), (-99.9, -17.6), (-92.6, -37.5)])  # lines 0-7
add_polygon(sketch16, [(84.1, 37.5), (73.9, 12.5), (73.9, -12.5), (84.1, -37.5), (92.6, -37.5), (99.9, -17.6), (99.9, 17.6), (92.6, 37.5)])  # lines 8-15
add_polygon(sketch16, [(-12.5, -72.8), (-45.9, -74.9), (-45.9, -88.8), (-34.7, -95.3), (0, -101.4), (34.7, -95.3), (45.9, -88.8), (45.9, -74.9), (12.5, -72.8), (0, -75)])  # lines 16-25
add_polygon(sketch16, [(-36.9, 92), (-36.9, 64), (-25.7, 70.5), (-12.8, 72.7), (-32.1, 92)])  # lines 26-30
add_polygon(sketch16, [(32.1, 92), (12.8, 72.7), (25.7, 70.5), (36.9, 64), (36.9, 92)])  # lines 31-35
sketch16.addConstraint([
    Sketcher.Constraint("Vertical", 1),
    Sketcher.Constraint("Horizontal", 3),
    Sketcher.Constraint("Vertical", 5),
    Sketcher.Constraint("Horizontal", 7),
    Sketcher.Constraint("Vertical", 9),
    Sketcher.Constraint("Horizontal", 11),
    Sketcher.Constraint("Vertical", 13),
    Sketcher.Constraint("Horizontal", 15),
    Sketcher.Constraint("Vertical", 17),
    Sketcher.Constraint("Vertical", 22),
    Sketcher.Constraint("Vertical", 26),
    Sketcher.Constraint("Horizontal", 30),
    Sketcher.Constraint("Vertical", 34),
    Sketcher.Constraint("Horizontal", 35),
    Sketcher.Constraint("Symmetric", 1, 2, 9, 2, -1, 1),
    Sketcher.Constraint("Symmetric", 2, 2, 10, 2, -1, 1),
    Sketcher.Constraint("Symmetric", 4, 2, 12, 2, -1, 1),
    Sketcher.Constraint("Symmetric", 6, 2, 14, 2, -1, 1),
    Sketcher.Constraint("Symmetric", 7, 2, 10, 2, -2),
    Sketcher.Constraint("Symmetric", 18, 2, 20, 2, -2),
    Sketcher.Constraint("Symmetric", 17, 2, 21, 2, -2),
    Sketcher.Constraint("Symmetric", 23, 2, 25, 2, -2),
    Sketcher.Constraint("Symmetric", 28, 2, 31, 2, -2),
    Sketcher.Constraint("Symmetric", 27, 2, 32, 2, -2),
    Sketcher.Constraint("Symmetric", 26, 2, 33, 2, -2),
    Sketcher.Constraint("Symmetric", 29, 2, 35, 2, -2),
    Sketcher.Constraint("PointOnObject", 19, 2, -2),
    Sketcher.Constraint("PointOnObject", 24, 2, -2),
    Sketcher.Constraint("Parallel", 4, 12),
    Sketcher.Constraint("Parallel", 6, 14),
    Sketcher.Constraint("Parallel", 20, 24),
    Sketcher.Constraint("Parallel", 21, 27),
    Sketcher.Constraint("Parallel", 24, 28),
    Sketcher.Constraint("Perpendicular", 29, 31),
    Sketcher.Constraint("Horizontal", 1, 2, 8, 2),
    Sketcher.Constraint("Horizontal", 5, 2, 12, 2),
    Sketcher.Constraint("Horizontal", 16, 2, 22, 2),
    Sketcher.Constraint("Vertical", 3, 2, 6, 2),
    Sketcher.Constraint("Vertical", 10, 2, 15, 2),
    Sketcher.Constraint("Equal", 27, 28),
    Sketcher.Constraint("DistanceY", 9, 2, 9, 1, 25.0),
    Sketcher.Constraint("DistanceY", 26, 2, 26, 1, 28.0),
    Sketcher.Constraint("Angle", 4, Q("-110 deg")),
    Sketcher.Constraint("Angle", 18, Q("-30 deg")),
    Sketcher.Constraint("Angle", 19, Q("-10 deg")),
    Sketcher.Constraint("DistanceY", 24, 2, -1, 1, 75.0),
    Sketcher.Constraint("DistanceY", 1, 2, 2, 2, 25.0),
    Sketcher.Constraint("DistanceX", 4, 2, 1, 2, 26.0),
    Sketcher.Constraint("DistanceX", 25, 2, 23, 2, 25.0),
    Sketcher.Constraint("DistanceX", 30, 2, 30, 1, 4.877869),
    Sketcher.Constraint("DistanceY", 5, 2, 5, 1, 35.21623),
    Sketcher.Constraint("DistanceY", 17, 2, -1, 1, 88.791201),
    Sketcher.Constraint("DistanceY", 5, 2, 0, 2, 4.584501),
    Sketcher.Constraint("DistanceX", 26, 2, 32, 2, 62.581801),
    Sketcher.Constraint("Distance", 2, 27.01835),
    Sketcher.Constraint("Distance", 19, 35.21623),
    Sketcher.Constraint("DistanceY", 17, 2, 17, 1, 13.856406),
    Sketcher.Constraint("DistanceX", 0, 2, -1, 1, 73.860581),
    Sketcher.Constraint("DistanceX", 16, 2, -1, 1, 45.930291),
    Sketcher.Constraint("DistanceY", -1, 1, 26, 2, 63.96514),
])
pocket3 = body.newObject("PartDesign::Pocket", "Pocket002")
pocket3.Profile = sketch16
pocket3.Length = 1.2

doc.recompute()
